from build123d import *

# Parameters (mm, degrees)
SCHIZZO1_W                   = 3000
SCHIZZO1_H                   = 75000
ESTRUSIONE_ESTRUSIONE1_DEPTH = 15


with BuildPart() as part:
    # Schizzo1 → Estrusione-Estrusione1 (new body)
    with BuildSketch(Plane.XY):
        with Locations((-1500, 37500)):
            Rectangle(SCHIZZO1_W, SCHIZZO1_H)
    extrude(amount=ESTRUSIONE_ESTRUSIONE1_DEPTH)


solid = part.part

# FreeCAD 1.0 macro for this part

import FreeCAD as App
import Part
import Sketcher
from FreeCAD import Vector


def add_polygon(sketch, points):
    """Adds a closed chain of lines whose ends are joined by coincident constraints."""
    first, n = sketch.GeometryCount, len(points)
    for a, b in zip(points, points[1:] + points[:1]):
        sketch.addGeometry(Part.LineSegment(App.Vector(*a, 0), App.Vector(*b, 0)), False)
    for i in range(n):
        sketch.addConstraint(Sketcher.Constraint("Coincident", first + i, 2, first + (i + 1) % n, 1))

doc = App.newDocument("Part")
params = doc.addObject("Spreadsheet::Sheet", "Params")
for row, (alias, value) in enumerate([
    ("sketch1_width", "3000 mm"),
    ("sketch1_height", "75000 mm"),
    ("pad1_length", "15 mm"),
], start=1):
    params.set(f"A{row}", alias)
    params.set(f"B{row}", "=" + value)
    params.setAlias(f"B{row}", alias)

body = doc.addObject("PartDesign::Body", "Body")

# Sketch on XY plane
sketch1 = body.newObject("Sketcher::SketchObject", "Sketch")
sketch1.AttachmentSupport = (doc.getObject("XY_Plane"), [""])
sketch1.MapMode = "FlatFace"
add_polygon(sketch1, [(-3000, 75000), (-3000, 0), (0, 0), (0, 75000)])  # lines 0-3
sketch1.addConstraint(Sketcher.Constraint("Vertical", 0))
sketch1.addConstraint(Sketcher.Constraint("Horizontal", 1))
sketch1.addConstraint(Sketcher.Constraint("Vertical", 2))
sketch1.addConstraint(Sketcher.Constraint("Horizontal", 3))
sketch1.addConstraint(Sketcher.Constraint("Coincident", 1, 2, -1, 1))
sketch1.addConstraint(Sketcher.Constraint("DistanceX", 1, 1, 1, 2, 3000.0))
sketch1.addConstraint(Sketcher.Constraint("DistanceY", 0, 2, 0, 1, 75000.0))
sketch1.setExpression("Constraints[9]", "Params.sketch1_width")
sketch1.setExpression("Constraints[10]", "Params.sketch1_height")
pad1 = body.newObject("PartDesign::Pad", "Pad")
pad1.Profile = sketch1
pad1.setExpression("Length", "Params.pad1_length")

doc.recompute()
